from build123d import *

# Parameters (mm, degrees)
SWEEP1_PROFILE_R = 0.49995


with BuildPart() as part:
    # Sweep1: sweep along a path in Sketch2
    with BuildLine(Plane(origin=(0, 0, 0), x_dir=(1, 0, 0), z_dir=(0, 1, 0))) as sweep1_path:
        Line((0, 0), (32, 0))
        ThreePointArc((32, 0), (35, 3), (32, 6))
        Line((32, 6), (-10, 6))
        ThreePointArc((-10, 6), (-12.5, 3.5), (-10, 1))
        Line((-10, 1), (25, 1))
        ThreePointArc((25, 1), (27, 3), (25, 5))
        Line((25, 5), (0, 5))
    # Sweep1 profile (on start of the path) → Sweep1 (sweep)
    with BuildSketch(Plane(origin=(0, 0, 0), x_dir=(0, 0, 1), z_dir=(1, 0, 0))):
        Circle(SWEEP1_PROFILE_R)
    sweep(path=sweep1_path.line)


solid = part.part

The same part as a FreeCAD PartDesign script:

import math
import FreeCAD as App
import Part
import Sketcher

V = App.Vector
Q = App.Units.Quantity

doc = App.newDocument("Part")
params = doc.addObject("Spreadsheet::Sheet", "Params")
for row, (alias, value) in enumerate([
    ("sketch2_radius", "3 mm"),
    ("sketch2_radius2", "2 mm"),
    ("sketch2_width", "32 mm"),
    ("sketch2_width2", "42 mm"),
    ("sketch2_width3", "35 mm"),
], start=1):
    params.set(f"A{row}", alias)
    params.set(f"B{row}", "=" + value)
    params.setAlias(f"B{row}", alias)

body = doc.addObject("PartDesign::Body", "Body")

# Sketch on YZ plane
sketch1 = body.newObject("Sketcher::SketchObject", "Sketch")
sketch1.AttachmentSupport = (doc.getObject("YZ_Plane"), [""])
sketch1.MapMode = "FlatFace"
sketch1.addGeometry(Part.Circle(V(0, 0, 0), V(0, 0, 1), 0.5), False)
sketch1.addConstraint(Sketcher.Constraint("Coincident", 0, 3, -1, 1))
sketch1.addConstraint(Sketcher.Constraint("Diameter", 0, Q("0.9999 mm")))

# Sketch on XZ plane
sketch2 = body.newObject("Sketcher::SketchObject", "Sketch001")
sketch2.AttachmentSupport = (doc.getObject("XZ_Plane"), [""])
sketch2.MapMode = "FlatFace"
sketch2.addGeometry(Part.LineSegment(V(0, 0, 0), V(32, 0, 0)), False)
sketch2.addGeometry(Part.ArcOfCircle(Part.Circle(V(32, -3, 0), V(0, 0, 1), 3), math.radians(-90), math.radians(90)), False)
sketch2.addGeometry(Part.LineSegment(V(32, -6, 0), V(-10, -6, 0)), False)
sketch2.addGeometry(Part.ArcOfCircle(Part.Circle(V(-10, -3.5, 0), V(0, 0, 1), 2.5), math.radians(90), math.radians(270)), False)
sketch2.addGeometry(Part.LineSegment(V(-10, -1, 0), V(25, -1, 0)), False)
sketch2.addGeometry(Part.ArcOfCircle(Part.Circle(V(25, -3, 0), V(0, 0, 1), 2), math.radians(-90), math.radians(90)), False)
sketch2.addGeometry(Part.LineSegment(V(25, -5, 0), V(0, -5, 0)), False)
sketch2.addConstraint(Sketcher.Constraint("Tangent", 0, 2, 1, 2))
sketch2.addConstraint(Sketcher.Constraint("Tangent", 1, 1, 2, 1))
sketch2.addConstraint(Sketcher.Constraint("Tangent", 2, 2, 3, 2))
sketch2.addConstraint(Sketcher.Constraint("Tangent", 3, 1, 4, 1))
sketch2.addConstraint(Sketcher.Constraint("Tangent", 4, 2, 5, 2))
sketch2.addConstraint(Sketcher.Constraint("Tangent", 5, 1, 6, 1))
sketch2.addConstraint(Sketcher.Constraint("Horizontal", 0))
sketch2.addConstraint(Sketcher.Constraint("Horizontal", 2))
sketch2.addConstraint(Sketcher.Constraint("Horizontal", 4))
sketch2.addConstraint(Sketcher.Constraint("Horizontal", 6))
sketch2.addConstraint(Sketcher.Constraint("Coincident", 0, 1, -1, 1))
sketch2.addConstraint(Sketcher.Constraint("PointOnObject", 6, 2, -2))
sketch2.addConstraint(Sketcher.Constraint("Horizontal", 1, 3, 5, 3))
sketch2.addConstraint(Sketcher.Constraint("Radius", 1, Q("3 mm")))
sketch2.addConstraint(Sketcher.Constraint("Radius", 5, Q("2 mm")))
sketch2.addConstraint(Sketcher.Constraint("DistanceX", 0, 1, 0, 2, Q("32 mm")))
sketch2.addConstraint(Sketcher.Constraint("DistanceX", 2, 2, 2, 1, Q("42 mm")))
sketch2.addConstraint(Sketcher.Constraint("DistanceX", 4, 1, 4, 2, Q("35 mm")))
sketch2.setExpression("Constraints[13]", "Params.sketch2_radius")
sketch2.setExpression("Constraints[14]", "Params.sketch2_radius2")
sketch2.setExpression("Constraints[15]", "Params.sketch2_width")
sketch2.setExpression("Constraints[16]", "Params.sketch2_width2")
sketch2.setExpression("Constraints[17]", "Params.sketch2_width3")
doc.recompute()

additivepipe = body.newObject("PartDesign::AdditivePipe", "AdditivePipe")
additivepipe.Profile = sketch1
additivepipe.Spine = (sketch2, ["Edge1", "Edge2", "Edge3", "Edge4", "Edge5", "Edge6", "Edge7"])

doc.recompute()
